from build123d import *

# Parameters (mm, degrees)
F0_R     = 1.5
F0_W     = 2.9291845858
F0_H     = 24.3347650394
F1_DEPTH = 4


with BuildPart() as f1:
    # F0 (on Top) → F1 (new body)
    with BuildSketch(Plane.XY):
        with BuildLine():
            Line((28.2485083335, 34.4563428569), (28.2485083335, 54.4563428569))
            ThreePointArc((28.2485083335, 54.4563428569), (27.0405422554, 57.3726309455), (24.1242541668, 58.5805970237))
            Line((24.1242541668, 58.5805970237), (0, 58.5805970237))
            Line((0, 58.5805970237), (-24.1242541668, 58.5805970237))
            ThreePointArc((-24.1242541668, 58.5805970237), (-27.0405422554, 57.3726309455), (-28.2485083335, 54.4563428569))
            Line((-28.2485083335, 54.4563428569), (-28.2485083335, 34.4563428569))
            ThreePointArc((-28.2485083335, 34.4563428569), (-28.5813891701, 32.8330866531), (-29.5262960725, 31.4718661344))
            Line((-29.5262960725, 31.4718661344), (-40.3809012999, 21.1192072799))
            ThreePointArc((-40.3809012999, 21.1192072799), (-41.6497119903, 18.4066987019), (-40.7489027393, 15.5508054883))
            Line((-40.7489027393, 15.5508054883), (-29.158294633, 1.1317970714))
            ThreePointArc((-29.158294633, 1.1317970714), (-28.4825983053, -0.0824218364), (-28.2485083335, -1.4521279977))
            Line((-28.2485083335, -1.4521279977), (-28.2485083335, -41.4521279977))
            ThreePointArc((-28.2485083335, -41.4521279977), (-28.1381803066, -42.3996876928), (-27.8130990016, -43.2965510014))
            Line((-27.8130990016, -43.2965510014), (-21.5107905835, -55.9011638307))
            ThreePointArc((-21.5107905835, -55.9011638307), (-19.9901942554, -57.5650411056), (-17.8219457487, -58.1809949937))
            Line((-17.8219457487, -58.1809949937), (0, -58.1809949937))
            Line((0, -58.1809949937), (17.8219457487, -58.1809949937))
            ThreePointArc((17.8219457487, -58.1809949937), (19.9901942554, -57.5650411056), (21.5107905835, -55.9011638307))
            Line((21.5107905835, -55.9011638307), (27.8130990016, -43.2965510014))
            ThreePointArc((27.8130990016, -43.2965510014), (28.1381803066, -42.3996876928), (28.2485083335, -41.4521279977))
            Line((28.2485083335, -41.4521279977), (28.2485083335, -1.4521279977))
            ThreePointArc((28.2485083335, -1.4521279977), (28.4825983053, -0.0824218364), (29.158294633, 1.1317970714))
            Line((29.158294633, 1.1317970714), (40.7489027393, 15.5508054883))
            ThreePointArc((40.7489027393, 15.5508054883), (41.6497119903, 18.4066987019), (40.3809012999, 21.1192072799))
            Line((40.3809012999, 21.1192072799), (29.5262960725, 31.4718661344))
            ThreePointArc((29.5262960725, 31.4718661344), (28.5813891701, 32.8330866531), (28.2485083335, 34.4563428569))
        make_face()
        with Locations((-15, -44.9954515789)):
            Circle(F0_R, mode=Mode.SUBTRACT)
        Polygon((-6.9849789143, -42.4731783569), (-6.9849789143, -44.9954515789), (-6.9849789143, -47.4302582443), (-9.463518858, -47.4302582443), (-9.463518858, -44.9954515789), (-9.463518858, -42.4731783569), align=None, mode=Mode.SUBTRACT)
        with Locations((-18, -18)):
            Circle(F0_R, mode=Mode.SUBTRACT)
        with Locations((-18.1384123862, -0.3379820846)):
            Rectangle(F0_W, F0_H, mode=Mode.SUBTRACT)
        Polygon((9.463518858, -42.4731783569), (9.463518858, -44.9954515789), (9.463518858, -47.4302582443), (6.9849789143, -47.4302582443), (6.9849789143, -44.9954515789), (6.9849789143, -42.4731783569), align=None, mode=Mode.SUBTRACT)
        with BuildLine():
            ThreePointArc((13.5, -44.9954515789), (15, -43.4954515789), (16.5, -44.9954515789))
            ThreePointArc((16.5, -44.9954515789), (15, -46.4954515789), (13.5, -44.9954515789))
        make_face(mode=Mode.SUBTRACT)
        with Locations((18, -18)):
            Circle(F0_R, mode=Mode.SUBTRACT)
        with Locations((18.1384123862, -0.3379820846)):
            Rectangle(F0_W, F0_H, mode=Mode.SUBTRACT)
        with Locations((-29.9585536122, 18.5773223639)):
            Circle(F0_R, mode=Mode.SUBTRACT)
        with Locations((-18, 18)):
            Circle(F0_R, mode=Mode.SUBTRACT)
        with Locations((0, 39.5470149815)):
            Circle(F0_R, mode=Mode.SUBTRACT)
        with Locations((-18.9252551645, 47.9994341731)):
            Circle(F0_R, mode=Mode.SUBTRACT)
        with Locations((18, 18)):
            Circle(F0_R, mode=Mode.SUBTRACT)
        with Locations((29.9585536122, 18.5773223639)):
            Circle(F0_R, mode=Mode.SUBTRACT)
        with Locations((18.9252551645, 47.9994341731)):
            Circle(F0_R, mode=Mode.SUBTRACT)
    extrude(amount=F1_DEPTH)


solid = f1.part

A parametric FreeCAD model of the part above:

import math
import FreeCAD as App
import Part
import Sketcher
from FreeCAD import Vector
Q = App.Units.Quantity


def add_polygon(sketch, points):
    """Adds a closed chain of lines whose ends are joined by coincident constraints."""
    first, n = sketch.GeometryCount, len(points)
    for a, b in zip(points, points[1:] + points[:1]):
        sketch.addGeometry(Part.LineSegment(App.Vector(*a, 0), App.Vector(*b, 0)), False)
    for i in range(n):
        sketch.addConstraint(Sketcher.Constraint("Coincident", first + i, 2, first + (i + 1) % n, 1))

doc = App.newDocument("Part")
params = doc.addObject("Spreadsheet::Sheet", "Params")
for row, (alias, value) in enumerate([
    ("sketch1_diameter", "3 mm"),
    ("sketch1_height", "20 mm"),
    ("sketch1_height2", "40 mm"),
    ("sketch1_length", "15 mm"),
    ("sketch1_length2", "18.5 mm"),
    ("pad1_length", "4 mm"),
], start=1):
    params.set(f"A{row}", alias)
    params.set(f"B{row}", "=" + value)
    params.setAlias(f"B{row}", alias)

body = doc.addObject("PartDesign::Body", "Body")

sketch1 = doc.addObject("Sketcher::SketchObject", "Sketch")
body.addObject(sketch1)
sketch1.AttachmentSupport = (doc.XY_Plane, [""])
sketch1.MapMode = "FlatFace"
sketch1.addGeometry(Part.LineSegment(Vector(28.248508, 34.456343, 0), Vector(28.248508, 54.456343, 0)), False)
sketch1.addGeometry(Part.ArcOfCircle(Part.Circle(Vector(24.124254, 54.456343, 0), Vector(0, 0, 1), 4.124254), math.radians(0), math.radians(90)), False)
sketch1.addGeometry(Part.LineSegment(Vector(24.124254, 58.580597, 0), Vector(-24.124254, 58.580597, 0)), False)
sketch1.addGeometry(Part.ArcOfCircle(Part.Circle(Vector(-24.124254, 54.456343, 0), Vector(0, 0, 1), 4.124254), math.radians(90), math.radians(180)), False)
sketch1.addGeometry(Part.LineSegment(Vector(-28.248508, 54.456343, 0), Vector(-28.248508, 34.456343, 0)), False)
sketch1.addGeometry(Part.ArcOfCircle(Part.Circle(Vector(-32.372763, 34.456343, 0), Vector(0, 0, 1), 4.124254), math.radians(-46.355858), math.radians(0)), False)
sketch1.addGeometry(Part.LineSegment(Vector(-29.526296, 31.471866, 0), Vector(-40.380901, 21.119207, 0)), False)
sketch1.addGeometry(Part.ArcOfCircle(Part.Circle(Vector(-37.534435, 18.134731, 0), Vector(0, 0, 1), 4.124254), math.radians(133.644142), math.radians(218.793791)), False)
sketch1.addGeometry(Part.LineSegment(Vector(-40.748903, 15.550805, 0), Vector(-29.158295, 1.131797, 0)), False)
sketch1.addGeometry(Part.ArcOfCircle(Part.Circle(Vector(-32.372763, -1.452128, 0), Vector(0, 0, 1), 4.124254), math.radians(0), math.radians(38.793791)), False)
sketch1.addGeometry(Part.LineSegment(Vector(-28.248508, -1.452128, 0), Vector(-28.248508, -41.452128, 0)), False)
sketch1.addGeometry(Part.ArcOfCircle(Part.Circle(Vector(-24.124254, -41.452128, 0), Vector(0, 0, 1), 4.124254), math.radians(180), math.radians(206.565058)), False)
sketch1.addGeometry(Part.LineSegment(Vector(-27.813099, -43.296551, 0), Vector(-21.510791, -55.901164, 0)), False)
sketch1.addGeometry(Part.ArcOfCircle(Part.Circle(Vector(-17.821946, -54.056741, 0), Vector(0, 0, 1), 4.124254), math.radians(-153.434942), math.radians(-90)), False)
sketch1.addGeometry(Part.LineSegment(Vector(-17.821946, -58.180995, 0), Vector(17.821946, -58.180995, 0)), False)
sketch1.addGeometry(Part.ArcOfCircle(Part.Circle(Vector(17.821946, -54.056741, 0), Vector(0, 0, 1), 4.124254), math.radians(-90), math.radians(-26.565058)), False)
sketch1.addGeometry(Part.LineSegment(Vector(21.510791, -55.901164, 0), Vector(27.813099, -43.296551, 0)), False)
sketch1.addGeometry(Part.ArcOfCircle(Part.Circle(Vector(24.124254, -41.452128, 0), Vector(0, 0, 1), 4.124254), math.radians(-26.565058), math.radians(0)), False)
sketch1.addGeometry(Part.LineSegment(Vector(28.248508, -41.452128, 0), Vector(28.248508, -1.452128, 0)), False)
sketch1.addGeometry(Part.ArcOfCircle(Part.Circle(Vector(32.372763, -1.452128, 0), Vector(0, 0, 1), 4.124254), math.radians(141.206209), math.radians(180)), False)
sketch1.addGeometry(Part.LineSegment(Vector(29.158295, 1.131797, 0), Vector(40.748903, 15.550805, 0)), False)
sketch1.addGeometry(Part.ArcOfCircle(Part.Circle(Vector(37.534435, 18.134731, 0), Vector(0, 0, 1), 4.124254), math.radians(-38.793791), math.radians(46.355858)), False)
sketch1.addGeometry(Part.LineSegment(Vector(40.380901, 21.119207, 0), Vector(29.526296, 31.471866, 0)), False)
sketch1.addGeometry(Part.ArcOfCircle(Part.Circle(Vector(32.372763, 34.456343, 0), Vector(0, 0, 1), 4.124254), math.radians(180), math.radians(226.355858)), False)
sketch1.addGeometry(Part.Circle(Vector(-15, -44.995452, 0), Vector(0, 0, 1), 1.5), False)
add_polygon(sketch1, [(-9.463519, -42.473178), (-6.984979, -42.473178), (-6.984979, -47.430258), (-9.463519, -47.430258)])
sketch1.addGeometry(Part.Circle(Vector(-18, -18, 0), Vector(0, 0, 1), 1.5), False)
add_polygon(sketch1, [(-16.67382, -12.505365), (-19.603005, -12.505365), (-19.603005, 11.8294), (-16.67382, 11.8294)])
add_polygon(sketch1, [(6.984979, -42.473178), (9.463519, -42.473178), (9.463519, -47.430258), (6.984979, -47.430258)])
sketch1.addGeometry(Part.Circle(Vector(15, -44.995452, 0), Vector(0, 0, 1), 1.5), False)
sketch1.addGeometry(Part.Circle(Vector(18, -18, 0), Vector(0, 0, 1), 1.5), False)
add_polygon(sketch1, [(19.603005, -12.505365), (16.67382, -12.505365), (16.67382, 11.8294), (19.603005, 11.8294)])
sketch1.addGeometry(Part.Circle(Vector(-29.958554, 18.577322, 0), Vector(0, 0, 1), 1.5), False)
sketch1.addGeometry(Part.Circle(Vector(-18, 18, 0), Vector(0, 0, 1), 1.5), False)
sketch1.addGeometry(Part.Circle(Vector(-18.925255, 47.999434, 0), Vector(0, 0, 1), 1.5), False)
sketch1.addGeometry(Part.Circle(Vector(18, 18, 0), Vector(0, 0, 1), 1.5), False)
sketch1.addGeometry(Part.Circle(Vector(29.958554, 18.577322, 0), Vector(0, 0, 1), 1.5), False)
sketch1.addGeometry(Part.Circle(Vector(0, 39.547015, 0), Vector(0, 0, 1), 1.5), False)
sketch1.addGeometry(Part.Circle(Vector(18.925255, 47.999434, 0), Vector(0, 0, 1), 1.5), False)
sketch1.addConstraint(Sketcher.Constraint("Tangent", 0, 2, 1, 1))
sketch1.addConstraint(Sketcher.Constraint("Tangent", 1, 2, 2, 1))
sketch1.addConstraint(Sketcher.Constraint("Tangent", 2, 2, 3, 1))
sketch1.addConstraint(Sketcher.Constraint("Tangent", 3, 2, 4, 1))
sketch1.addConstraint(Sketcher.Constraint("Tangent", 4, 2, 5, 2))
sketch1.addConstraint(Sketcher.Constraint("Tangent", 5, 1, 6, 1))
sketch1.addConstraint(Sketcher.Constraint("Tangent", 6, 2, 7, 1))
sketch1.addConstraint(Sketcher.Constraint("Tangent", 7, 2, 8, 1))
sketch1.addConstraint(Sketcher.Constraint("Tangent", 8, 2, 9, 2))
sketch1.addConstraint(Sketcher.Constraint("Tangent", 9, 1, 10, 1))
sketch1.addConstraint(Sketcher.Constraint("Tangent", 10, 2, 11, 1))
sketch1.addConstraint(Sketcher.Constraint("Tangent", 11, 2, 12, 1))
sketch1.addConstraint(Sketcher.Constraint("Tangent", 12, 2, 13, 1))
sketch1.addConstraint(Sketcher.Constraint("Tangent", 13, 2, 14, 1))
sketch1.addConstraint(Sketcher.Constraint("Tangent", 14, 2, 15, 1))
sketch1.addConstraint(Sketcher.Constraint("Tangent", 15, 2, 16, 1))
sketch1.addConstraint(Sketcher.Constraint("Tangent", 16, 2, 17, 1))
sketch1.addConstraint(Sketcher.Constraint("Tangent", 17, 2, 18, 1))
sketch1.addConstraint(Sketcher.Constraint("Tangent", 18, 2, 19, 2))
sketch1.addConstraint(Sketcher.Constraint("Tangent", 19, 1, 20, 1))
sketch1.addConstraint(Sketcher.Constraint("Tangent", 20, 2, 21, 1))
sketch1.addConstraint(Sketcher.Constraint("Tangent", 21, 2, 22, 1))
sketch1.addConstraint(Sketcher.Constraint("Tangent", 22, 2, 23, 2))
sketch1.addConstraint(Sketcher.Constraint("Tangent", 23, 1, 0, 1))
sketch1.addConstraint(Sketcher.Constraint("Vertical", 0))
sketch1.addConstraint(Sketcher.Constraint("Horizontal", 2))
sketch1.addConstraint(Sketcher.Constraint("Vertical", 4))
sketch1.addConstraint(Sketcher.Constraint("Vertical", 10))
sketch1.addConstraint(Sketcher.Constraint("Horizontal", 14))
sketch1.addConstraint(Sketcher.Constraint("Vertical", 18))
sketch1.addConstraint(Sketcher.Constraint("Horizontal", 25))
sketch1.addConstraint(Sketcher.Constraint("Vertical", 26))
sketch1.addConstraint(Sketcher.Constraint("Horizontal", 27))
sketch1.addConstraint(Sketcher.Constraint("Vertical", 28))
sketch1.addConstraint(Sketcher.Constraint("Horizontal", 30))
sketch1.addConstraint(Sketcher.Constraint("Vertical", 31))
sketch1.addConstraint(Sketcher.Constraint("Horizontal", 32))
sketch1.addConstraint(Sketcher.Constraint("Vertical", 33))
sketch1.addConstraint(Sketcher.Constraint("Horizontal", 34))
sketch1.addConstraint(Sketcher.Constraint("Vertical", 35))
sketch1.addConstraint(Sketcher.Constraint("Horizontal", 36))
sketch1.addConstraint(Sketcher.Constraint("Vertical", 37))
sketch1.addConstraint(Sketcher.Constraint("Horizontal", 40))
sketch1.addConstraint(Sketcher.Constraint("Vertical", 41))
sketch1.addConstraint(Sketcher.Constraint("Horizontal", 42))
sketch1.addConstraint(Sketcher.Constraint("Vertical", 43))
sketch1.addConstraint(Sketcher.Constraint("Equal", 1, 3))
sketch1.addConstraint(Sketcher.Constraint("Equal", 3, 5))
sketch1.addConstraint(Sketcher.Constraint("Equal", 5, 7))
sketch1.addConstraint(Sketcher.Constraint("Equal", 7, 9))
sketch1.addConstraint(Sketcher.Constraint("Equal", 9, 11))
sketch1.addConstraint(Sketcher.Constraint("Equal", 11, 13))
sketch1.addConstraint(Sketcher.Constraint("Equal", 13, 15))
sketch1.addConstraint(Sketcher.Constraint("Equal", 15, 17))
sketch1.addConstraint(Sketcher.Constraint("Equal", 17, 19))
sketch1.addConstraint(Sketcher.Constraint("Equal", 19, 21))
sketch1.addConstraint(Sketcher.Constraint("Equal", 21, 23))
sketch1.addConstraint(Sketcher.Constraint("Equal", 24, 29))
sketch1.addConstraint(Sketcher.Constraint("Equal", 29, 38))
sketch1.addConstraint(Sketcher.Constraint("Equal", 38, 39))
sketch1.addConstraint(Sketcher.Constraint("Equal", 39, 44))
sketch1.addConstraint(Sketcher.Constraint("Equal", 44, 45))
sketch1.addConstraint(Sketcher.Constraint("Equal", 45, 46))
sketch1.addConstraint(Sketcher.Constraint("Equal", 46, 47))
sketch1.addConstraint(Sketcher.Constraint("Equal", 47, 48))
sketch1.addConstraint(Sketcher.Constraint("Equal", 48, 49))
sketch1.addConstraint(Sketcher.Constraint("Equal", 49, 50))
sketch1.addConstraint(Sketcher.Constraint("Symmetric", 39, 3, 45, 3, -1, 1))
sketch1.addConstraint(Sketcher.Constraint("Symmetric", 29, 3, 47, 3, -1, 1))
sketch1.addConstraint(Sketcher.Constraint("Symmetric", 11, 3, 17, 3, -2))
sketch1.addConstraint(Sketcher.Constraint("Symmetric", 7, 3, 21, 3, -2))
sketch1.addConstraint(Sketcher.Constraint("Symmetric", 5, 3, 23, 3, -2))
sketch1.addConstraint(Sketcher.Constraint("Symmetric", 24, 3, 38, 3, -2))
sketch1.addConstraint(Sketcher.Constraint("Symmetric", 29, 3, 39, 3, -2))
sketch1.addConstraint(Sketcher.Constraint("Symmetric", 44, 3, 48, 3, -2))
sketch1.addConstraint(Sketcher.Constraint("Symmetric", 46, 3, 50, 3, -2))
sketch1.addConstraint(Sketcher.Constraint("Symmetric", 28, 2, 34, 2, -2))
sketch1.addConstraint(Sketcher.Constraint("Symmetric", 26, 2, 36, 2, -2))
sketch1.addConstraint(Sketcher.Constraint("Symmetric", 33, 2, 40, 2, -2))
sketch1.addConstraint(Sketcher.Constraint("Symmetric", 31, 2, 42, 2, -2))
sketch1.addConstraint(Sketcher.Constraint("PointOnObject", 49, 3, -2))
sketch1.addConstraint(Sketcher.Constraint("Horizontal", 9, 3, 19, 3))
sketch1.addConstraint(Sketcher.Constraint("Horizontal", 12, 2, 15, 2))
sketch1.addConstraint(Sketcher.Constraint("Vertical", 5, 3, 9, 3))
sketch1.addConstraint(Sketcher.Constraint("Diameter", 24, Q("3 mm")))
sketch1.addConstraint(Sketcher.Constraint("DistanceY", 0, 1, 0, 2, Q("20 mm")))
sketch1.addConstraint(Sketcher.Constraint("DistanceY", 10, 2, 10, 1, Q("40 mm")))
sketch1.addConstraint(Sketcher.Constraint("Distance", 6, Q("15 mm")))
sketch1.addConstraint(Sketcher.Constraint("DistanceX", 24, 3, -1, 1, Q("15 mm")))
sketch1.addConstraint(Sketcher.Constraint("DistanceX", 29, 3, -1, 1, Q("18 mm")))
sketch1.addConstraint(Sketcher.Constraint("DistanceY", 29, 3, -1, 1, Q("18 mm")))
sketch1.addConstraint(Sketcher.Constraint("Distance", 8, Q("18.5 mm")))
sketch1.addConstraint(Sketcher.Constraint("Radius", 1, Q("4.124254 mm")))
sketch1.addConstraint(Sketcher.Constraint("DistanceX", 2, 2, 2, 1, Q("48.248508 mm")))
sketch1.addConstraint(Sketcher.Constraint("DistanceX", 14, 1, 14, 2, Q("35.643891 mm")))
sketch1.addConstraint(Sketcher.Constraint("DistanceX", 25, 1, 25, 2, Q("2.47854 mm")))
sketch1.addConstraint(Sketcher.Constraint("DistanceY", 26, 2, 26, 1, Q("4.95708 mm")))
sketch1.addConstraint(Sketcher.Constraint("DistanceX", 6, 2, -1, 1, Q("40.380901 mm")))
sketch1.addConstraint(Sketcher.Constraint("DistanceX", 11, 2, -1, 1, Q("27.813099 mm")))
sketch1.addConstraint(Sketcher.Constraint("DistanceY", -1, 1, 31, 2, Q("11.8294 mm")))
sketch1.addConstraint(Sketcher.Constraint("DistanceX", 30, 2, 30, 1, Q("2.929185 mm")))
sketch1.addConstraint(Sketcher.Constraint("DistanceY", 31, 1, 31, 2, Q("24.334765 mm")))
sketch1.addConstraint(Sketcher.Constraint("DistanceY", -1, 1, 7, 3, Q("18.134731 mm")))
sketch1.addConstraint(Sketcher.Constraint("DistanceY", 24, 3, -1, 1, Q("44.995452 mm")))
sketch1.addConstraint(Sketcher.Constraint("DistanceX", 25, 2, -1, 1, Q("6.984979 mm")))
sketch1.addConstraint(Sketcher.Constraint("DistanceY", 25, 2, -1, 1, Q("42.473178 mm")))
sketch1.addConstraint(Sketcher.Constraint("DistanceX", 32, 2, -1, 1, Q("16.67382 mm")))
sketch1.addConstraint(Sketcher.Constraint("DistanceX", 44, 3, -1, 1, Q("29.958554 mm")))
sketch1.addConstraint(Sketcher.Constraint("DistanceY", -1, 1, 44, 3, Q("18.577322 mm")))
sketch1.addConstraint(Sketcher.Constraint("DistanceX", 46, 3, -1, 1, Q("18.925255 mm")))
sketch1.addConstraint(Sketcher.Constraint("DistanceY", -1, 1, 46, 3, Q("47.999434 mm")))
sketch1.addConstraint(Sketcher.Constraint("DistanceY", -1, 1, 49, 3, Q("39.547015 mm")))
sketch1.setExpression("Constraints[100]", "Params.sketch1_diameter")
sketch1.setExpression("Constraints[101]", "Params.sketch1_height")
sketch1.setExpression("Constraints[102]", "Params.sketch1_height2")
sketch1.setExpression("Constraints[103]", "Params.sketch1_length")
sketch1.setExpression("Constraints[107]", "Params.sketch1_length2")
pad1 = doc.addObject("PartDesign::Pad", "Pad")
body.addObject(pad1)
pad1.Profile = sketch1
pad1.setExpression("Length", "Params.pad1_length")

doc.recompute()
